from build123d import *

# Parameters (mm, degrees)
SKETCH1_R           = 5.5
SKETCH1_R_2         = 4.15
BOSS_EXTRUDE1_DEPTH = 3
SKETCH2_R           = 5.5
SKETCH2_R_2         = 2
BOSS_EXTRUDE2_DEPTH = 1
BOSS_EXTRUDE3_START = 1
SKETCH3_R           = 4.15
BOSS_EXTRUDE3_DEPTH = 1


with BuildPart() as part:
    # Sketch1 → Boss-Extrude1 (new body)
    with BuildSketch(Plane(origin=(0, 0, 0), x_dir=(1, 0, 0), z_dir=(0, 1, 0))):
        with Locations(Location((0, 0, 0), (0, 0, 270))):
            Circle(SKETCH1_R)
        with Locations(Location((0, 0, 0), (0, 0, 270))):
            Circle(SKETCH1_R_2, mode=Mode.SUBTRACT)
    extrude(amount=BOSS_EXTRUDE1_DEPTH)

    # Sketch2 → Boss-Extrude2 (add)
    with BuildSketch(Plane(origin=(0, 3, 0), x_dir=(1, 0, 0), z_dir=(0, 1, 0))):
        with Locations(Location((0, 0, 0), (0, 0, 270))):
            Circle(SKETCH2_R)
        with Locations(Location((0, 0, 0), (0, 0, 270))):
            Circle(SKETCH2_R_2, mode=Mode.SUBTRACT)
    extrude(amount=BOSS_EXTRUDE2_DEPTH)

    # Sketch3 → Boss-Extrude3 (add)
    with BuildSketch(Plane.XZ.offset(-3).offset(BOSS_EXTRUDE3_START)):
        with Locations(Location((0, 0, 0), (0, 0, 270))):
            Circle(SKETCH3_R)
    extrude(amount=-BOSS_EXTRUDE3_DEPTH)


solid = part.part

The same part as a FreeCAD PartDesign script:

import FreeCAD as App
import Part
import Sketcher

V = App.Vector
Q = App.Units.Quantity

doc = App.newDocument("Part")
body = doc.addObject("PartDesign::Body", "Body")

sketch1 = doc.addObject("Sketcher::SketchObject", "Sketch")
body.addObject(sketch1)
sketch1.AttachmentSupport = (doc.XZ_Plane, [""])
sketch1.MapMode = "FlatFace"
sketch1.addGeometry([
    Part.Circle(V(0, 0, 0), V(0, 0, 1), 5.5),
    Part.Circle(V(0, 0, 0), V(0, 0, 1), 4.2),
], False)
sketch1.addConstraint([
    Sketcher.Constraint("Coincident", 0, 3, -1, 1),
    Sketcher.Constraint("Coincident", 1, 3, -1, 1),
    Sketcher.Constraint("Diameter", 0, Q("11 mm")),
    Sketcher.Constraint("Diameter", 1, Q("8.3 mm")),
])
pad1 = doc.addObject("PartDesign::Pad", "Pad")
body.addObject(pad1)
pad1.Profile = sketch1
pad1.Length = 3
pad1.Reversed = True

sketch2 = doc.addObject("Sketcher::SketchObject", "Sketch001")
body.addObject(sketch2)
sketch2.AttachmentSupport = (doc.XZ_Plane, [""])
sketch2.MapMode = "FlatFace"
sketch2.AttachmentOffset = App.Placement(V(0, 0, -3), App.Rotation())
sketch2.addGeometry([
    Part.Circle(V(0, 0, 0), V(0, 0, 1), 5.5),
    Part.Circle(V(0, 0, 0), V(0, 0, 1), 2),
], False)
sketch2.addConstraint([
    Sketcher.Constraint("Coincident", 0, 3, -1, 1),
    Sketcher.Constraint("Coincident", 1, 3, -1, 1),
    Sketcher.Constraint("Diameter", 0, Q("11 mm")),
    Sketcher.Constraint("Diameter", 1, Q("4 mm")),
])
pad2 = doc.addObject("PartDesign::Pad", "Pad001")
body.addObject(pad2)
pad2.Profile = sketch2
pad2.Length = 1
pad2.Reversed = True

sketch3 = doc.addObject("Sketcher::SketchObject", "Sketch002")
body.addObject(sketch3)
sketch3.AttachmentSupport = (doc.XZ_Plane, [""])
sketch3.MapMode = "FlatFace"
sketch3.AttachmentOffset = App.Placement(V(0, 0, -2), App.Rotation())
sketch3.addGeometry(Part.Circle(V(0, 0, 0), V(0, 0, 1), 4.2), False)
sketch3.addConstraint([
    Sketcher.Constraint("Coincident", 0, 3, -1, 1),
    Sketcher.Constraint("Diameter", 0, Q("8.3 mm")),
])
pad3 = doc.addObject("PartDesign::Pad", "Pad002")
body.addObject(pad3)
pad3.Profile = sketch3
pad3.Length = 1
pad3.Reversed = True

doc.recompute()
